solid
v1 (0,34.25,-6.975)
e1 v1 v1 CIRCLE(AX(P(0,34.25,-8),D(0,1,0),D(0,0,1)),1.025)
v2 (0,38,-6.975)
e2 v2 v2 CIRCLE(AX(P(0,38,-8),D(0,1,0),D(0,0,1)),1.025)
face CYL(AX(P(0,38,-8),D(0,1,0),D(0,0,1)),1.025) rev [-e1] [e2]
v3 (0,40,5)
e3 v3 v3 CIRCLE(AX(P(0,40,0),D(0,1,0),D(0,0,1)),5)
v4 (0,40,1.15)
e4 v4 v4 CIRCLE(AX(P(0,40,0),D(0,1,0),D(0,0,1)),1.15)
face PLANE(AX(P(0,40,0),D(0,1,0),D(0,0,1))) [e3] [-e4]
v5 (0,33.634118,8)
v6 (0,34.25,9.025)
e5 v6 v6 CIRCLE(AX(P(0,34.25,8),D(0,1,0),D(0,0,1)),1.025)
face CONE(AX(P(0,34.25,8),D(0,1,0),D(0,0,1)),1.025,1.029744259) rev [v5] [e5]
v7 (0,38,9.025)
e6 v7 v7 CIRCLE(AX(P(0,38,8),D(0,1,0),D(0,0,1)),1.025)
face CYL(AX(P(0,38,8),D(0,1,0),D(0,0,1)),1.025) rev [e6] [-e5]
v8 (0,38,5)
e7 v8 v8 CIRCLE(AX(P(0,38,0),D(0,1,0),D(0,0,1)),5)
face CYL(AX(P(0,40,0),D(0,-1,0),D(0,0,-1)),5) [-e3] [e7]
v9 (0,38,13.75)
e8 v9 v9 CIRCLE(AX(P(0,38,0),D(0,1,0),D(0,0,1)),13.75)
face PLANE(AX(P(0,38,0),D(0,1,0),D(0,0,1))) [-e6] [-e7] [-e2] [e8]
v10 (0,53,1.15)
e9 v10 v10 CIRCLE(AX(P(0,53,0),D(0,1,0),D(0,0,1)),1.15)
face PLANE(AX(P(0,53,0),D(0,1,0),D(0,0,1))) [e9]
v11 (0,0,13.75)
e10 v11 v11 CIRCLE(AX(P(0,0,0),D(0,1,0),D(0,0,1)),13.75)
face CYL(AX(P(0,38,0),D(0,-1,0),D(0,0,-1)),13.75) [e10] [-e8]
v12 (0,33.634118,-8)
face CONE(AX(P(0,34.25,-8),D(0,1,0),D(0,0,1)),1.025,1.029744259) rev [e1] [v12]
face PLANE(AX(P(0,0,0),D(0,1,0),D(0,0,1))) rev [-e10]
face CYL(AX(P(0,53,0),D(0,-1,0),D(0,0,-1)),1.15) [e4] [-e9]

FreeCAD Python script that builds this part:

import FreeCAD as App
import Part
import Sketcher

V = App.Vector

doc = App.newDocument("Part")
body = doc.addObject("PartDesign::Body", "Body")

sketch1 = body.newObject("Sketcher::SketchObject", "Sketch")
sketch1.AttachmentSupport = (doc.getObject("XZ_Plane"), [""])
sketch1.MapMode = "FlatFace"
sketch1.addGeometry(Part.Circle(V(0, 0, 0), V(0, 0, 1), 14), False)
sketch1.addConstraint([
    Sketcher.Constraint("Coincident", 0, 3, -1, 1),
    Sketcher.Constraint("Diameter", 0, 27.5),
])
pad1 = body.newObject("PartDesign::Pad", "Pad")
pad1.Profile = sketch1
pad1.Length = 38
pad1.Reversed = True

sketch2 = body.newObject("Sketcher::SketchObject", "Sketch001")
sketch2.AttachmentSupport = (doc.getObject("XZ_Plane"), [""])
sketch2.MapMode = "FlatFace"
sketch2.AttachmentOffset = App.Placement(V(0, 0, -38), App.Rotation())
sketch2.addGeometry(Part.Circle(V(0, 0, 0), V(0, 0, 1), 5), False)
sketch2.addConstraint([
    Sketcher.Constraint("Coincident", 0, 3, -1, 1),
    Sketcher.Constraint("Diameter", 0, 10.0),
])
pad2 = body.newObject("PartDesign::Pad", "Pad001")
pad2.Profile = sketch2
pad2.Length = 2
pad2.Reversed = True

sketch3 = body.newObject("Sketcher::SketchObject", "Sketch002")
sketch3.AttachmentSupport = (doc.getObject("XZ_Plane"), [""])
sketch3.MapMode = "FlatFace"
sketch3.AttachmentOffset = App.Placement(V(0, 0, -40), App.Rotation())
sketch3.addGeometry(Part.Circle(V(0, 0, 0), V(0, 0, 1), 1.1), False)
sketch3.addConstraint([
    Sketcher.Constraint("Coincident", 0, 3, -1, 1),
    Sketcher.Constraint("Diameter", 0, 2.3),
])
pad3 = body.newObject("PartDesign::Pad", "Pad002")
pad3.Profile = sketch3
pad3.Length = 13
pad3.Reversed = True

sketch4 = body.newObject("Sketcher::SketchObject", "Sketch003")
sketch4.AttachmentSupport = (doc.getObject("XZ_Plane"), [""])
sketch4.MapMode = "FlatFace"
sketch4.AttachmentOffset = App.Placement(V(0, 0, -38), App.Rotation())
sketch4.addGeometry([
    Part.Circle(V(0, -8, 0), V(0, 0, 1), 1),
    Part.Circle(V(0, 8, 0), V(0, 0, 1), 1),
], False)
sketch4.addConstraint([
    Sketcher.Constraint("Equal", 0, 1),
    Sketcher.Constraint("Symmetric", 0, 3, 1, 3, -1, 1),
    Sketcher.Constraint("PointOnObject", 0, 3, -2),
    Sketcher.Constraint("Diameter", 0, 2.05),
    Sketcher.Constraint("DistanceY", 0, 3, -1, 1, 8.0),
])
doc.recompute()
hole = body.newObject("PartDesign::Hole", "Hole")
hole.Profile = sketch4
hole.ThreadType = "None"
hole.Diameter = 2.05
hole.DepthType = "Dimension"
hole.Depth = 3.75
hole.DrillPoint = "Angled"
hole.DrillPointAngle = 118
hole.Reversed = True

doc.recompute()
